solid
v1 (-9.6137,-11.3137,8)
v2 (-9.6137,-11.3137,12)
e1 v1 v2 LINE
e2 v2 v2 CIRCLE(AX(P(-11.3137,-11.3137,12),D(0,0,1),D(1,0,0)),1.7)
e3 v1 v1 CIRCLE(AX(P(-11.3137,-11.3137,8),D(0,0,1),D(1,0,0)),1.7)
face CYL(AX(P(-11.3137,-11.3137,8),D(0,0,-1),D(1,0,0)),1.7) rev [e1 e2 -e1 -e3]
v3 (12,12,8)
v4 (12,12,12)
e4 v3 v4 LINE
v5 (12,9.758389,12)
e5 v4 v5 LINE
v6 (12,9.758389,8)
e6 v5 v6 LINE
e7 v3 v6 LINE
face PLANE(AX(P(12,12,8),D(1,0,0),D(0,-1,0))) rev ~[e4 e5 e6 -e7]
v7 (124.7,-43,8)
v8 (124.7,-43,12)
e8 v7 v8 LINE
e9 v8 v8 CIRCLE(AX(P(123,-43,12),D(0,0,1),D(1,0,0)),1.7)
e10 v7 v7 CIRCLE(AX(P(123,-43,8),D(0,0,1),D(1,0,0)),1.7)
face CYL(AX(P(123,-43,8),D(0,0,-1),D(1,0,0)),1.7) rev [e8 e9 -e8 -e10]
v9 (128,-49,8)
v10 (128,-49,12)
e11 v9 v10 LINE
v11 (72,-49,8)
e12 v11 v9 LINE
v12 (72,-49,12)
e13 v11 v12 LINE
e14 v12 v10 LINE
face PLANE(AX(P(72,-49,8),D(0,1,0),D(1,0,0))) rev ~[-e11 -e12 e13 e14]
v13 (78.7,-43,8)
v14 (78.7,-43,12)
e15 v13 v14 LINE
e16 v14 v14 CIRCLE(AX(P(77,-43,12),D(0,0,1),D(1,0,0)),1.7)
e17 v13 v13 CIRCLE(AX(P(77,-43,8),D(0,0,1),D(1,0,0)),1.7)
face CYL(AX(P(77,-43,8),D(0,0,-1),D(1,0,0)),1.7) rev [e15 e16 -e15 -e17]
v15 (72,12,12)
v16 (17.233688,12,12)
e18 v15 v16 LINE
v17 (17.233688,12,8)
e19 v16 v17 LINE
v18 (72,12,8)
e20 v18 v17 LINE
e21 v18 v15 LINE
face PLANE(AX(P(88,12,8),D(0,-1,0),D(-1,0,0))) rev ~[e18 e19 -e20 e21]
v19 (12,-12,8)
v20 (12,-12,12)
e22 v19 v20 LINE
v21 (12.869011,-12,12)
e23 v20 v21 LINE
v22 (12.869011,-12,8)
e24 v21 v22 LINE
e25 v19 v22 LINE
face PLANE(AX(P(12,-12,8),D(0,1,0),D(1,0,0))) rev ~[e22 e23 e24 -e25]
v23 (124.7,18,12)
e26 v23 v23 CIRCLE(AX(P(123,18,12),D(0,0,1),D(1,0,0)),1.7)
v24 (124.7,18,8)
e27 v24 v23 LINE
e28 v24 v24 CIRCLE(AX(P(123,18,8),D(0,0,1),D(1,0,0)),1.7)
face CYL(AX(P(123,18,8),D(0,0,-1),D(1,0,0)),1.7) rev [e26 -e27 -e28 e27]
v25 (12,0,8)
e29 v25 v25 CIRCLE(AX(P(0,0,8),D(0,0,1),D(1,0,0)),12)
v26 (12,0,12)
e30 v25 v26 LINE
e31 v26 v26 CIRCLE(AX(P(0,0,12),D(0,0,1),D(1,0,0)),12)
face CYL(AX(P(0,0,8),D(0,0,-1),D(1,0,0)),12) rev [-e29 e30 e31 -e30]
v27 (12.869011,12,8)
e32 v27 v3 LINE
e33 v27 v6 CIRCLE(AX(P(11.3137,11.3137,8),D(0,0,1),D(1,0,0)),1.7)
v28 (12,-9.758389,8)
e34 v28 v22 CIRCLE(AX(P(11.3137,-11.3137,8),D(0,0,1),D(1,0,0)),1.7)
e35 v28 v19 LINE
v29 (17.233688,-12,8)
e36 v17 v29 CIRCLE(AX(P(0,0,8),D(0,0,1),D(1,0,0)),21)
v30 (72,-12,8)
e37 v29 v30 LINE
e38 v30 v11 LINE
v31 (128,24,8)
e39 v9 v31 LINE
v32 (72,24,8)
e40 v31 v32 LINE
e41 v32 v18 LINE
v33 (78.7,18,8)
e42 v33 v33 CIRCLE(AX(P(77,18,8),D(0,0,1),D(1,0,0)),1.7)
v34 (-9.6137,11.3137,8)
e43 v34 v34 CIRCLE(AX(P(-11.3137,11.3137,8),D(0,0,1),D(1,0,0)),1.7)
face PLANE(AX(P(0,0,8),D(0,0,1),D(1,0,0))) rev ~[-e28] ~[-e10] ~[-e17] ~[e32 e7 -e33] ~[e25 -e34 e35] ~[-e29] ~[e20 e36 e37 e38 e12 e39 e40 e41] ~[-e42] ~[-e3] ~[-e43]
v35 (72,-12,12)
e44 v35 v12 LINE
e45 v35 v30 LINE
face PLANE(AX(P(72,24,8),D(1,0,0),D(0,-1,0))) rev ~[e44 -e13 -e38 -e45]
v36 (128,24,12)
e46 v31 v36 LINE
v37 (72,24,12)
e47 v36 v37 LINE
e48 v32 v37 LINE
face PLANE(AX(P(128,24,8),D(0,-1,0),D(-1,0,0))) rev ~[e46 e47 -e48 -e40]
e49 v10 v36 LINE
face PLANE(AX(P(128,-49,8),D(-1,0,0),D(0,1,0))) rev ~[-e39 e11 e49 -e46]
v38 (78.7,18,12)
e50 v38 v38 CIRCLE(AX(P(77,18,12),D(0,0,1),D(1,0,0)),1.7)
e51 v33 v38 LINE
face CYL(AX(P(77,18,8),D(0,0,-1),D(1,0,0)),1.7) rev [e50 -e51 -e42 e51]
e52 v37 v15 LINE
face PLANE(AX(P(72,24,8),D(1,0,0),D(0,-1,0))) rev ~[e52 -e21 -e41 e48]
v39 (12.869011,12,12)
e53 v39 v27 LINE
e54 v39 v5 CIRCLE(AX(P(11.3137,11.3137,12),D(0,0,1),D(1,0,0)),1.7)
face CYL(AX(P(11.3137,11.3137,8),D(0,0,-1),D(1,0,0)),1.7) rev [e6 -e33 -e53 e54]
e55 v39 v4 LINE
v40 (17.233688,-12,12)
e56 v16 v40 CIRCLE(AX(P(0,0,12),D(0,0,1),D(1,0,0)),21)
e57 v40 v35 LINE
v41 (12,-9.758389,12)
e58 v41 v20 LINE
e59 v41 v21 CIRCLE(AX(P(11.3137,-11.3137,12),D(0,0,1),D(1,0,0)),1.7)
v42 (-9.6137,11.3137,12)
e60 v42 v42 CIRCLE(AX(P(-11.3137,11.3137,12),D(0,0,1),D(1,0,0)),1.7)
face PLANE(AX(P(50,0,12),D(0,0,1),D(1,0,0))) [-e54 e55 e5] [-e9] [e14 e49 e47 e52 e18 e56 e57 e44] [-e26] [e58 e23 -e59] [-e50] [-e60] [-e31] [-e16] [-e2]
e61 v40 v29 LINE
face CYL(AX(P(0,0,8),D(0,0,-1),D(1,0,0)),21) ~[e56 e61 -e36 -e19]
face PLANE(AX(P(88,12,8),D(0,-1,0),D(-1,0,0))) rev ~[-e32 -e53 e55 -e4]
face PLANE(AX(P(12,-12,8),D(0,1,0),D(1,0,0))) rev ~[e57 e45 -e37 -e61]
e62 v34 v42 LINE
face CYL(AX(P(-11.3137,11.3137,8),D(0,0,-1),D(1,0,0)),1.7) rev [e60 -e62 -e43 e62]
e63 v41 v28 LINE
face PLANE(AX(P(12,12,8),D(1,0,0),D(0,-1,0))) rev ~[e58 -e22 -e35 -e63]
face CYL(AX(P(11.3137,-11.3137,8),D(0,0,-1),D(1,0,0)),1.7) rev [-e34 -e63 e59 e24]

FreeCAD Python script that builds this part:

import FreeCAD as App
import Part
import Sketcher
Q = App.Units.Quantity


def add_polygon(sketch, points):
    """Adds a closed chain of lines whose ends are joined by coincident constraints."""
    first, n = sketch.GeometryCount, len(points)
    for a, b in zip(points, points[1:] + points[:1]):
        sketch.addGeometry(Part.LineSegment(App.Vector(*a, 0), App.Vector(*b, 0)), False)
    for i in range(n):
        sketch.addConstraint(Sketcher.Constraint("Coincident", first + i, 2, first + (i + 1) % n, 1))

doc = App.newDocument("Part")
body = doc.addObject("PartDesign::Body", "Body")

# Sketch on XY plane
sketch1 = doc.addObject("Sketcher::SketchObject", "Sketch")
body.addObject(sketch1)
sketch1.AttachmentSupport = (doc.XY_Plane, [""])
sketch1.MapMode = "FlatFace"
sketch1.AttachmentOffset = App.Placement(App.Vector(0, 0, 8), App.Rotation())
sketch1.addGeometry([
    Part.Circle(App.Vector(0, 0, 0), App.Vector(0, 0, 1), 21),  # 0
    Part.Circle(App.Vector(-11.3, -11.3, 0), App.Vector(0, 0, 1), 1.7),  # 1
    Part.Circle(App.Vector(11.3, -11.3, 0), App.Vector(0, 0, 1), 1.7),  # 2
    Part.Circle(App.Vector(-11.3, 11.3, 0), App.Vector(0, 0, 1), 1.7),  # 3
    Part.Circle(App.Vector(0, 0, 0), App.Vector(0, 0, 1), 12),  # 4
    Part.Circle(App.Vector(11.3, 11.3, 0), App.Vector(0, 0, 1), 1.7),  # 5
], False)
sketch1.addConstraint([
    Sketcher.Constraint("Coincident", 0, 3, -1, 1),
    Sketcher.Constraint("Coincident", 4, 3, -1, 1),
    Sketcher.Constraint("Equal", 1, 2),
    Sketcher.Constraint("Equal", 2, 3),
    Sketcher.Constraint("Equal", 3, 5),
    Sketcher.Constraint("Symmetric", 2, 3, 3, 3, -1, 1),
    Sketcher.Constraint("Symmetric", 1, 3, 5, 3, -1, 1),
    Sketcher.Constraint("Symmetric", 1, 3, 2, 3, -2),
    Sketcher.Constraint("Diameter", 0, Q("42 mm")),
    Sketcher.Constraint("Diameter", 4, Q("24 mm")),
    Sketcher.Constraint("Diameter", 1, Q("3.4 mm")),
    Sketcher.Constraint("DistanceX", 1, 3, -1, 1, Q("11.3137 mm")),
    Sketcher.Constraint("DistanceY", 1, 3, -1, 1, Q("11.3137 mm")),
])
pad1 = doc.addObject("PartDesign::Pad", "Pad")
body.addObject(pad1)
pad1.Profile = sketch1
pad1.Length = 4

# Sketch on XY plane
sketch2 = doc.addObject("Sketcher::SketchObject", "Sketch001")
body.addObject(sketch2)
sketch2.AttachmentSupport = (doc.XY_Plane, [""])
sketch2.MapMode = "FlatFace"
sketch2.AttachmentOffset = App.Placement(App.Vector(0, 0, 8), App.Rotation())
add_polygon(sketch2, [(12, 12), (12, -12), (88, -12), (88, 12)])  # lines 0-3
sketch2.addConstraint([
    Sketcher.Constraint("Vertical", 0),
    Sketcher.Constraint("Horizontal", 1),
    Sketcher.Constraint("Vertical", 2),
    Sketcher.Constraint("Horizontal", 3),
    Sketcher.Constraint("DistanceX", 1, 1, 1, 2, Q("76 mm")),
    Sketcher.Constraint("DistanceY", 0, 2, 0, 1, Q("24 mm")),
    Sketcher.Constraint("DistanceX", -1, 1, 0, 2, Q("12 mm")),
    Sketcher.Constraint("DistanceY", 0, 2, -1, 1, Q("12 mm")),
])
pad2 = doc.addObject("PartDesign::Pad", "Pad001")
body.addObject(pad2)
pad2.Profile = sketch2
pad2.Length = 4

# Sketch on XY plane
sketch3 = doc.addObject("Sketcher::SketchObject", "Sketch002")
body.addObject(sketch3)
sketch3.AttachmentSupport = (doc.XY_Plane, [""])
sketch3.MapMode = "FlatFace"
sketch3.AttachmentOffset = App.Placement(App.Vector(0, 0, 8), App.Rotation())
add_polygon(sketch3, [(72, 24), (72, -49), (128, -49), (128, 24)])  # lines 0-3
sketch3.addGeometry(Part.Circle(App.Vector(77, -43, 0), App.Vector(0, 0, 1), 1.7), False)  # 4
sketch3.addGeometry(Part.Circle(App.Vector(123, -43, 0), App.Vector(0, 0, 1), 1.7), False)  # 5
sketch3.addGeometry(Part.Circle(App.Vector(77, 18, 0), App.Vector(0, 0, 1), 1.7), False)  # 6
sketch3.addGeometry(Part.Circle(App.Vector(123, 18, 0), App.Vector(0, 0, 1), 1.7), False)  # 7
sketch3.addConstraint([
    Sketcher.Constraint("Vertical", 0),
    Sketcher.Constraint("Horizontal", 1),
    Sketcher.Constraint("Vertical", 2),
    Sketcher.Constraint("Horizontal", 3),
    Sketcher.Constraint("Equal", 4, 5),
    Sketcher.Constraint("Equal", 5, 6),
    Sketcher.Constraint("Equal", 6, 7),
    Sketcher.Constraint("Horizontal", 4, 3, 5, 3),
    Sketcher.Constraint("Horizontal", 6, 3, 7, 3),
    Sketcher.Constraint("Vertical", 4, 3, 6, 3),
    Sketcher.Constraint("Vertical", 5, 3, 7, 3),
    Sketcher.Constraint("Diameter", 4, Q("3.4 mm")),
    Sketcher.Constraint("DistanceX", 1, 1, 1, 2, Q("56 mm")),
    Sketcher.Constraint("DistanceY", 0, 2, 0, 1, Q("73 mm")),
    Sketcher.Constraint("DistanceX", -1, 1, 4, 3, Q("77 mm")),
    Sketcher.Constraint("DistanceY", 4, 3, -1, 1, Q("43 mm")),
    Sketcher.Constraint("DistanceX", -1, 1, 5, 3, Q("123 mm")),
    Sketcher.Constraint("DistanceY", -1, 1, 6, 3, Q("18 mm")),
    Sketcher.Constraint("DistanceX", -1, 1, 0, 2, Q("72 mm")),
    Sketcher.Constraint("DistanceY", 0, 2, -1, 1, Q("49 mm")),
])
pad3 = doc.addObject("PartDesign::Pad", "Pad002")
body.addObject(pad3)
pad3.Profile = sketch3
pad3.Length = 4

doc.recompute()
